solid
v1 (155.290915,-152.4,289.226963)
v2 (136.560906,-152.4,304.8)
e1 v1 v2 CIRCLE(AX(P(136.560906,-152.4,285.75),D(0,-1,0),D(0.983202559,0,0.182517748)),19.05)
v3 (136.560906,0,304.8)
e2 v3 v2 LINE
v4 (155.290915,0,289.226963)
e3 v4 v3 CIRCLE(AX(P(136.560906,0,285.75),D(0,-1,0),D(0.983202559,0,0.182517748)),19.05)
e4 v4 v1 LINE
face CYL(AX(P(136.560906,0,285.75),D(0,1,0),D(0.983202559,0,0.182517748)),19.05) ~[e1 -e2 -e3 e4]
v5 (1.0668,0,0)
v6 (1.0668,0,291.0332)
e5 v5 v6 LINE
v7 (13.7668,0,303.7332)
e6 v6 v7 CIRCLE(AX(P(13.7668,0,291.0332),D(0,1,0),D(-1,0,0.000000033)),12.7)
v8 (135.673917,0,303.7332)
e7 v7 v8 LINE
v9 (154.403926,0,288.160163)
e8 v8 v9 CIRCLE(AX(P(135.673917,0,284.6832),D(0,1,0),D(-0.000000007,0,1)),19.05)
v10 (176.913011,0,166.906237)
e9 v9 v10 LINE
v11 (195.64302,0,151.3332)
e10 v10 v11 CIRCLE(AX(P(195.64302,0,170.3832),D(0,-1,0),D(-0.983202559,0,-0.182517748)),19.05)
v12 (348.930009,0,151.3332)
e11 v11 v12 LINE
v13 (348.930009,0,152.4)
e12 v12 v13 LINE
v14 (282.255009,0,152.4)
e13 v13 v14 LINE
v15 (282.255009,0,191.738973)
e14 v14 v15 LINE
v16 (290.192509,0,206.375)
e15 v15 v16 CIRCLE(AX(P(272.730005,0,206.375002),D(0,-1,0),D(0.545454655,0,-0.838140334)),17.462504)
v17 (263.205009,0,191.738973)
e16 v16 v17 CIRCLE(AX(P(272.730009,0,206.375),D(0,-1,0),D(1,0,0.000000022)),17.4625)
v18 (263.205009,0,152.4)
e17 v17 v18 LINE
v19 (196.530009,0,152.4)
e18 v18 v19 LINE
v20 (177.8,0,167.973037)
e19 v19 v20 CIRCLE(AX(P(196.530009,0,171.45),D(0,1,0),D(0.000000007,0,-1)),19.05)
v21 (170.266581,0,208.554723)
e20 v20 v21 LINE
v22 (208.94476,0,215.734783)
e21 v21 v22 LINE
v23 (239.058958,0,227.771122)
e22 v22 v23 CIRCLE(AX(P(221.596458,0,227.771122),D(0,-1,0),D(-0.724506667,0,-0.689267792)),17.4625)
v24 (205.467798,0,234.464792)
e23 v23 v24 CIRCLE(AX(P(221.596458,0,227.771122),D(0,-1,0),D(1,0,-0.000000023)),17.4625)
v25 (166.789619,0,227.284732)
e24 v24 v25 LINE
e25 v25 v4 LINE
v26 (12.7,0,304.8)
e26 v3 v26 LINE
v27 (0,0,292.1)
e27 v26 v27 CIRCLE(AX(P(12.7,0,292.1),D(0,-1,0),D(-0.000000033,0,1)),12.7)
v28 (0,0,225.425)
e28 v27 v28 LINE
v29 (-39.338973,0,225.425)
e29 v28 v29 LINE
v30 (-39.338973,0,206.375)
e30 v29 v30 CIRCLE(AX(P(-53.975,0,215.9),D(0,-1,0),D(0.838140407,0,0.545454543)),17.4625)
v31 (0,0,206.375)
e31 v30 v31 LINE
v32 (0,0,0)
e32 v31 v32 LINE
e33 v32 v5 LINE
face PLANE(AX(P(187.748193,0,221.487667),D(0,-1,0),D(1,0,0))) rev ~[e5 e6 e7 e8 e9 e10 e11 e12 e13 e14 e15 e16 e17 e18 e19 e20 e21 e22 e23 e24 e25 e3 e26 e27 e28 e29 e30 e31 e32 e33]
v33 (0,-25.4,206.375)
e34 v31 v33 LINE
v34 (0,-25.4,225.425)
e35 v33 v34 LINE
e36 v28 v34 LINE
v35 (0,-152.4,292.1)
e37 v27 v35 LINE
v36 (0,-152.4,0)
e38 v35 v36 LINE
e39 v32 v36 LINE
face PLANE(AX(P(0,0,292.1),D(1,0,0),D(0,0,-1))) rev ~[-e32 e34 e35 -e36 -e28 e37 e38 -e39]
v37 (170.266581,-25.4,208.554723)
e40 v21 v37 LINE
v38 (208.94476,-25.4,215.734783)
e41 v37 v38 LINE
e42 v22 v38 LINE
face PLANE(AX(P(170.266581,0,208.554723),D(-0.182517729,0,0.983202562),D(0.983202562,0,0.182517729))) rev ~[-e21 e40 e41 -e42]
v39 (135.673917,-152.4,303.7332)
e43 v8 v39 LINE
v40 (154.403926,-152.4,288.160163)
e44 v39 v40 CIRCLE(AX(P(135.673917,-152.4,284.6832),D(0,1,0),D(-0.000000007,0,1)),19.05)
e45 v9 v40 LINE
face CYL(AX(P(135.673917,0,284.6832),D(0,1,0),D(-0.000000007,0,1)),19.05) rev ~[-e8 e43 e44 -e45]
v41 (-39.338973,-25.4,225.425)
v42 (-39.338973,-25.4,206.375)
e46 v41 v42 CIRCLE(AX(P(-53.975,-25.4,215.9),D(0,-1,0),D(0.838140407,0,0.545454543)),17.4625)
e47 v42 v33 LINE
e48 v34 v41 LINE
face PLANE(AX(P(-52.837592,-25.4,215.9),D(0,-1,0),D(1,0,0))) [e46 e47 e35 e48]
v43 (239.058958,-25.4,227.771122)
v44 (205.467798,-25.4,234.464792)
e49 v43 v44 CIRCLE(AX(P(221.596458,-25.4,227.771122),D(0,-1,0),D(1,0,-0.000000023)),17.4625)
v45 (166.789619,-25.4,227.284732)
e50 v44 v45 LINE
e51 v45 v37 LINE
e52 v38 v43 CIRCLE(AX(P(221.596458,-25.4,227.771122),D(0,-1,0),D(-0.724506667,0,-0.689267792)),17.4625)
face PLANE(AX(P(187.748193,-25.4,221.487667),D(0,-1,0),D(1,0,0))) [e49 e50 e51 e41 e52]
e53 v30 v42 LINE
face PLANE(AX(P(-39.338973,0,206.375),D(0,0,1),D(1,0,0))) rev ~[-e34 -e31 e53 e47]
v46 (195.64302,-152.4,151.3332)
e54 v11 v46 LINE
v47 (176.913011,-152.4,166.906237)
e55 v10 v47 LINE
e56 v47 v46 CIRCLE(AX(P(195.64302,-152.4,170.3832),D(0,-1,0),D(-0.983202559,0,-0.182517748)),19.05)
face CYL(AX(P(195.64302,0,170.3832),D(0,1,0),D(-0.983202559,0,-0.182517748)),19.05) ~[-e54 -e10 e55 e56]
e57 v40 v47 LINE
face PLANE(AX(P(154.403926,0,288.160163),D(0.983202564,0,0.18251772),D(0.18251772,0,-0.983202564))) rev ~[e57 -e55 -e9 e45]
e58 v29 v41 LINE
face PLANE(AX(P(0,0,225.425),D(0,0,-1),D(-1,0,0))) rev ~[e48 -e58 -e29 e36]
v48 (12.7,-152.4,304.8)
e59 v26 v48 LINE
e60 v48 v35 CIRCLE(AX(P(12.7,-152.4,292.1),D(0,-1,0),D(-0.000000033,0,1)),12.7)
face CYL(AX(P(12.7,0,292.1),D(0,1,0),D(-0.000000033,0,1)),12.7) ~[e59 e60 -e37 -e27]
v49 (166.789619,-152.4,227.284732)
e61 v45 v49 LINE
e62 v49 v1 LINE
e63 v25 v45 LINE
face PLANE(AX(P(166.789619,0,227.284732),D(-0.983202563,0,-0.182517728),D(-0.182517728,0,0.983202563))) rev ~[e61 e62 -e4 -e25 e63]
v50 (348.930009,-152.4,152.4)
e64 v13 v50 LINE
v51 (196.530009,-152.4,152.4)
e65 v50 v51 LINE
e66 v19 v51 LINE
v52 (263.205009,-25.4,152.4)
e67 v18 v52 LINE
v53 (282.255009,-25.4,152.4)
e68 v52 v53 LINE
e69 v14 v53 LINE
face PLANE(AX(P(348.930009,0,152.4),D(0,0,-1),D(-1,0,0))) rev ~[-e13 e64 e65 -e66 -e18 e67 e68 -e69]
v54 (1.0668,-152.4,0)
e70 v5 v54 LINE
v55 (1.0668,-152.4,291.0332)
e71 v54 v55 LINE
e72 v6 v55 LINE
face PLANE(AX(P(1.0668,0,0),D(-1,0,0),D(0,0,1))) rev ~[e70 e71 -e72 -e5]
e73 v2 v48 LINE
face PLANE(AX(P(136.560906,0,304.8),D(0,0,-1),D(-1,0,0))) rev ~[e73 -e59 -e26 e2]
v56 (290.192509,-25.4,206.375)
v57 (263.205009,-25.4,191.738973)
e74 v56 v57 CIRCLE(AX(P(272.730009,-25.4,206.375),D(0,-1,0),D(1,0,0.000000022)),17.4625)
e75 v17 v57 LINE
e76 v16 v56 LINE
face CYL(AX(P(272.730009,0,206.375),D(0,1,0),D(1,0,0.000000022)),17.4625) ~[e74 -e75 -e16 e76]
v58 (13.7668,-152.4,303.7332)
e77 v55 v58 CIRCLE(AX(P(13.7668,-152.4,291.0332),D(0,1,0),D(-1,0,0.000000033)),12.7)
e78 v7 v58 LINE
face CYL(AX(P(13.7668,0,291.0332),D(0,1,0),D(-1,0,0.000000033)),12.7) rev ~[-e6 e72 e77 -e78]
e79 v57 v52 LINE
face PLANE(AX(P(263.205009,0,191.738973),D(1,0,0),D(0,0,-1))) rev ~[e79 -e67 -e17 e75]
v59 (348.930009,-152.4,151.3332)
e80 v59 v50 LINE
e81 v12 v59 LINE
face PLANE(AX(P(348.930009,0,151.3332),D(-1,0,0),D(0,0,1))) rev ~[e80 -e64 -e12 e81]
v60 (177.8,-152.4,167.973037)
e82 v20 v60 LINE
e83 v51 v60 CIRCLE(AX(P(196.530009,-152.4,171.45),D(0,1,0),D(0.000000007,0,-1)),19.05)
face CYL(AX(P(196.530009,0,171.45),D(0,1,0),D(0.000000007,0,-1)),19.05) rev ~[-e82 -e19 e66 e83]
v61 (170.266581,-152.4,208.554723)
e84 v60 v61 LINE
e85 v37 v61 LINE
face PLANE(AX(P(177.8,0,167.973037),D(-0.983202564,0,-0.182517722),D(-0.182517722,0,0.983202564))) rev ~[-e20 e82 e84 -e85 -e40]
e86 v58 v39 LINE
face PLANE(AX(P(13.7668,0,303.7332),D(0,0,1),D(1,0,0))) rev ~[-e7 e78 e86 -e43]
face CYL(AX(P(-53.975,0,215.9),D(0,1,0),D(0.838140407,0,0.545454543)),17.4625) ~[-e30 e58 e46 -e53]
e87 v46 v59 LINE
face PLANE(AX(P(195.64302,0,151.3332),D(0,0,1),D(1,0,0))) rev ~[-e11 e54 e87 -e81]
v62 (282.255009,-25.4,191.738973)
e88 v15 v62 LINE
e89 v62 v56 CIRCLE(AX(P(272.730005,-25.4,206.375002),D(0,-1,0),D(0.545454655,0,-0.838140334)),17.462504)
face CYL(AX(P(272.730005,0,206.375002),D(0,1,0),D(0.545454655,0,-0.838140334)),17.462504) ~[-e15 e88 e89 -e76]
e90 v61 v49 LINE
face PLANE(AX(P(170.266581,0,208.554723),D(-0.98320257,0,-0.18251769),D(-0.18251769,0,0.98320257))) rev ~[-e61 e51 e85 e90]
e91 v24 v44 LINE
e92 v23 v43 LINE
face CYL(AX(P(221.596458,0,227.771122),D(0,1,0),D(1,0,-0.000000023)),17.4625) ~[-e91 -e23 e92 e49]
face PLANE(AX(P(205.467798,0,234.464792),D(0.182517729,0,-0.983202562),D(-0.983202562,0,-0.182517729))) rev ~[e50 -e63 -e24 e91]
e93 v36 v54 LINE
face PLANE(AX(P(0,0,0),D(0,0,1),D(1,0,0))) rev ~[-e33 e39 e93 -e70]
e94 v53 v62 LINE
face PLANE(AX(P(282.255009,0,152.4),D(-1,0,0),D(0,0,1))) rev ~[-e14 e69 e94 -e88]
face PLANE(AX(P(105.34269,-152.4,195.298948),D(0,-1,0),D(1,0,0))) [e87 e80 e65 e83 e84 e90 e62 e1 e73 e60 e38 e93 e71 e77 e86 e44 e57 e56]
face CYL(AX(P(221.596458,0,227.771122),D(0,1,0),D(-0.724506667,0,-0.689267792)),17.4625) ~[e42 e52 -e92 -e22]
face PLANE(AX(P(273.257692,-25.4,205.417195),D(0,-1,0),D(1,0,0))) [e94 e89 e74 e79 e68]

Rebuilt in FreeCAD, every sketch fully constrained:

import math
import FreeCAD as App
import Part
import Sketcher
from FreeCAD import Vector
Q = App.Units.Quantity

doc = App.newDocument("Part")
body = doc.addObject("PartDesign::Body", "Body")

# Sketch on XZ plane
sketch1 = body.newObject("Sketcher::SketchObject", "Sketch")
sketch1.AttachmentSupport = (doc.getObject("XZ_Plane"), [""])
sketch1.MapMode = "FlatFace"
sketch1.addGeometry(Part.LineSegment(Vector(0, 0, 0), Vector(1.1, 0, 0)), False)
sketch1.addGeometry(Part.LineSegment(Vector(1.1, 0, 0), Vector(1.1, 291, 0)), False)
sketch1.addGeometry(Part.ArcOfCircle(Part.Circle(Vector(13.8, 291, 0), Vector(0, 0, 1), 12.7), math.radians(90), math.radians(180)), False)
sketch1.addGeometry(Part.LineSegment(Vector(13.8, 303.7, 0), Vector(135.7, 303.7, 0)), False)
sketch1.addGeometry(Part.ArcOfCircle(Part.Circle(Vector(135.7, 284.7, 0), Vector(0, 0, 1), 19.1), math.radians(11), math.radians(90)), False)
sketch1.addGeometry(Part.LineSegment(Vector(154.4, 288.2, 0), Vector(176.9, 166.9, 0)), False)
sketch1.addGeometry(Part.ArcOfCircle(Part.Circle(Vector(195.6, 170.4, 0), Vector(0, 0, 1), 19.1), math.radians(-169), math.radians(-90)), False)
sketch1.addGeometry(Part.LineSegment(Vector(195.6, 151.3, 0), Vector(348.9, 151.3, 0)), False)
sketch1.addGeometry(Part.LineSegment(Vector(348.9, 151.3, 0), Vector(348.9, 152.4, 0)), False)
sketch1.addGeometry(Part.LineSegment(Vector(348.9, 152.4, 0), Vector(196.5, 152.4, 0)), False)
sketch1.addGeometry(Part.ArcOfCircle(Part.Circle(Vector(196.5, 171.5, 0), Vector(0, 0, 1), 19.1), math.radians(-169), math.radians(-90)), False)
sketch1.addGeometry(Part.LineSegment(Vector(177.8, 168, 0), Vector(170.3, 208.6, 0)), False)
sketch1.addGeometry(Part.LineSegment(Vector(170.3, 208.6, 0), Vector(166.8, 227.3, 0)), False)
sketch1.addGeometry(Part.LineSegment(Vector(166.8, 227.3, 0), Vector(155.3, 289.2, 0)), False)
sketch1.addGeometry(Part.ArcOfCircle(Part.Circle(Vector(136.6, 285.7, 0), Vector(0, 0, 1), 19.1), math.radians(11), math.radians(90)), False)
sketch1.addGeometry(Part.LineSegment(Vector(136.6, 304.8, 0), Vector(12.7, 304.8, 0)), False)
sketch1.addGeometry(Part.ArcOfCircle(Part.Circle(Vector(12.7, 292.1, 0), Vector(0, 0, 1), 12.7), math.radians(90), math.radians(180)), False)
sketch1.addGeometry(Part.LineSegment(Vector(0, 292.1, 0), Vector(0, 0, 0)), False)
sketch1.addConstraint(Sketcher.Constraint("Coincident", 0, 2, 1, 1))
sketch1.addConstraint(Sketcher.Constraint("Tangent", 1, 2, 2, 2))
sketch1.addConstraint(Sketcher.Constraint("Tangent", 2, 1, 3, 1))
sketch1.addConstraint(Sketcher.Constraint("Tangent", 3, 2, 4, 2))
sketch1.addConstraint(Sketcher.Constraint("Tangent", 4, 1, 5, 1))
sketch1.addConstraint(Sketcher.Constraint("Tangent", 5, 2, 6, 1))
sketch1.addConstraint(Sketcher.Constraint("Tangent", 6, 2, 7, 1))
sketch1.addConstraint(Sketcher.Constraint("Coincident", 7, 2, 8, 1))
sketch1.addConstraint(Sketcher.Constraint("Coincident", 8, 2, 9, 1))
sketch1.addConstraint(Sketcher.Constraint("Tangent", 9, 2, 10, 2))
sketch1.addConstraint(Sketcher.Constraint("Tangent", 10, 1, 11, 1))
sketch1.addConstraint(Sketcher.Constraint("Coincident", 11, 2, 12, 1))
sketch1.addConstraint(Sketcher.Constraint("Coincident", 12, 2, 13, 1))
sketch1.addConstraint(Sketcher.Constraint("Tangent", 13, 2, 14, 1))
sketch1.addConstraint(Sketcher.Constraint("Tangent", 14, 2, 15, 1))
sketch1.addConstraint(Sketcher.Constraint("Tangent", 15, 2, 16, 1))
sketch1.addConstraint(Sketcher.Constraint("Tangent", 16, 2, 17, 1))
sketch1.addConstraint(Sketcher.Constraint("Coincident", 17, 2, 0, 1))
sketch1.addConstraint(Sketcher.Constraint("Horizontal", 0))
sketch1.addConstraint(Sketcher.Constraint("Vertical", 1))
sketch1.addConstraint(Sketcher.Constraint("Horizontal", 3))
sketch1.addConstraint(Sketcher.Constraint("Horizontal", 7))
sketch1.addConstraint(Sketcher.Constraint("Vertical", 8))
sketch1.addConstraint(Sketcher.Constraint("Horizontal", 9))
sketch1.addConstraint(Sketcher.Constraint("Horizontal", 15))
sketch1.addConstraint(Sketcher.Constraint("Vertical", 17))
sketch1.addConstraint(Sketcher.Constraint("Coincident", 17, 2, -1, 1))
sketch1.addConstraint(Sketcher.Constraint("Equal", 4, 6))
sketch1.addConstraint(Sketcher.Constraint("Equal", 6, 10))
sketch1.addConstraint(Sketcher.Constraint("Equal", 10, 14))
sketch1.addConstraint(Sketcher.Constraint("Equal", 2, 16))
sketch1.addConstraint(Sketcher.Constraint("Parallel", 5, 11))
sketch1.addConstraint(Sketcher.Constraint("Parallel", 11, 12))
sketch1.addConstraint(Sketcher.Constraint("Parallel", 12, 13))
sketch1.addConstraint(Sketcher.Constraint("Equal", 0, 8))
sketch1.addConstraint(Sketcher.Constraint("Radius", 2, Q("0.5 in")))
sketch1.addConstraint(Sketcher.Constraint("DistanceX", 9, 2, 9, 1, Q("6 in")))
sketch1.addConstraint(Sketcher.Constraint("Radius", 4, Q("0.75 in")))
sketch1.addConstraint(Sketcher.Constraint("DistanceY", 17, 2, 17, 1, Q("11.5 in")))
sketch1.addConstraint(Sketcher.Constraint("DistanceY", -1, 1, 8, 2, Q("6 in")))
sketch1.addConstraint(Sketcher.Constraint("DistanceX", -1, 1, 10, 1, Q("7 in")))
sketch1.addConstraint(Sketcher.Constraint("DistanceY", 6, 3, 4, 3, Q("4.5 in")))
sketch1.addConstraint(Sketcher.Constraint("Distance", 12, Q("0.75 in")))
sketch1.addConstraint(Sketcher.Constraint("DistanceX", 0, 1, 0, 2, Q("0.042 in")))
sketch1.addConstraint(Sketcher.Constraint("Distance", 11, Q("1.625 in")))
sketch1.addConstraint(Sketcher.Constraint("DistanceX", 7, 1, 7, 2, Q("153.286989 mm")))
sketch1.addConstraint(Sketcher.Constraint("DistanceX", 3, 2, 13, 2, Q("19.616998 mm")))
pad1 = body.newObject("PartDesign::Pad", "Pad")
pad1.Profile = sketch1
pad1.Length = Q("6 in")

# Sketch on XZ plane
sketch2 = body.newObject("Sketcher::SketchObject", "Sketch001")
sketch2.AttachmentSupport = (doc.getObject("XZ_Plane"), [""])
sketch2.MapMode = "FlatFace"
sketch2.addGeometry(Part.ArcOfCircle(Part.Circle(Vector(-54, 216, 0), Vector(0, 0, 1), 17), math.radians(33), math.radians(327)), False)
sketch2.addGeometry(Part.LineSegment(Vector(-39, 206, 0), Vector(0, 206, 0)), False)
sketch2.addGeometry(Part.LineSegment(Vector(0, 206, 0), Vector(0, 225, 0)), False)
sketch2.addGeometry(Part.LineSegment(Vector(0, 225, 0), Vector(-39, 225, 0)), False)
sketch2.addGeometry(Part.LineSegment(Vector(205, 234, 0), Vector(167, 227, 0)), False)
sketch2.addGeometry(Part.LineSegment(Vector(167, 227, 0), Vector(170, 209, 0)), False)
sketch2.addGeometry(Part.LineSegment(Vector(170, 209, 0), Vector(209, 216, 0)), False)
sketch2.addGeometry(Part.ArcOfCircle(Part.Circle(Vector(222, 228, 0), Vector(0, 0, 1), 17), math.radians(-136), math.radians(0)), False)
sketch2.addGeometry(Part.ArcOfCircle(Part.Circle(Vector(222, 228, 0), Vector(0, 0, 1), 17), math.radians(0), math.radians(157)), False)
sketch2.addGeometry(Part.ArcOfCircle(Part.Circle(Vector(273, 206, 0), Vector(0, 0, 1), 17), math.radians(-57), math.radians(0)), False)
sketch2.addGeometry(Part.ArcOfCircle(Part.Circle(Vector(273, 206, 0), Vector(0, 0, 1), 17), math.radians(0), math.radians(237)), False)
sketch2.addGeometry(Part.LineSegment(Vector(263, 192, 0), Vector(263, 152, 0)), False)
sketch2.addGeometry(Part.LineSegment(Vector(263, 152, 0), Vector(282, 152, 0)), False)
sketch2.addGeometry(Part.LineSegment(Vector(282, 152, 0), Vector(282, 192, 0)), False)
sketch2.addConstraint(Sketcher.Constraint("Coincident", 0, 2, 1, 1))
sketch2.addConstraint(Sketcher.Constraint("Coincident", 1, 2, 2, 1))
sketch2.addConstraint(Sketcher.Constraint("Coincident", 2, 2, 3, 1))
sketch2.addConstraint(Sketcher.Constraint("Coincident", 3, 2, 0, 1))
sketch2.addConstraint(Sketcher.Constraint("Coincident", 4, 2, 5, 1))
sketch2.addConstraint(Sketcher.Constraint("Coincident", 5, 2, 6, 1))
sketch2.addConstraint(Sketcher.Constraint("Coincident", 6, 2, 7, 1))
sketch2.addConstraint(Sketcher.Constraint("Tangent", 7, 2, 8, 1))
sketch2.addConstraint(Sketcher.Constraint("Coincident", 8, 2, 4, 1))
sketch2.addConstraint(Sketcher.Constraint("Tangent", 9, 2, 10, 1))
sketch2.addConstraint(Sketcher.Constraint("Coincident", 10, 2, 11, 1))
sketch2.addConstraint(Sketcher.Constraint("Coincident", 11, 2, 12, 1))
sketch2.addConstraint(Sketcher.Constraint("Coincident", 12, 2, 13, 1))
sketch2.addConstraint(Sketcher.Constraint("Coincident", 13, 2, 9, 1))
sketch2.addConstraint(Sketcher.Constraint("Horizontal", 1))
sketch2.addConstraint(Sketcher.Constraint("Vertical", 2))
sketch2.addConstraint(Sketcher.Constraint("Horizontal", 3))
sketch2.addConstraint(Sketcher.Constraint("Vertical", 11))
sketch2.addConstraint(Sketcher.Constraint("Horizontal", 12))
sketch2.addConstraint(Sketcher.Constraint("Vertical", 13))
sketch2.addConstraint(Sketcher.Constraint("Equal", 0, 7))
sketch2.addConstraint(Sketcher.Constraint("Equal", 7, 8))
sketch2.addConstraint(Sketcher.Constraint("Equal", 8, 10))
sketch2.addConstraint(Sketcher.Constraint("PointOnObject", 1, 2, -2))
sketch2.addConstraint(Sketcher.Constraint("Perpendicular", 4, 5))
sketch2.addConstraint(Sketcher.Constraint("Perpendicular", 5, 6))
sketch2.addConstraint(Sketcher.Constraint("Horizontal", 10, 3, 0, 2))
sketch2.addConstraint(Sketcher.Constraint("Horizontal", 8, 3, 7, 2))
sketch2.addConstraint(Sketcher.Constraint("Horizontal", 1, 2, 9, 2))
sketch2.addConstraint(Sketcher.Constraint("Horizontal", 10, 2, 13, 2))
sketch2.addConstraint(Sketcher.Constraint("Vertical", 0, 2, 3, 2))
sketch2.addConstraint(Sketcher.Constraint("Equal", 12, 2))
sketch2.addConstraint(Sketcher.Constraint("Equal", 3, 11))
sketch2.addConstraint(Sketcher.Constraint("Equal", 4, 6))
sketch2.addConstraint(Sketcher.Constraint("DistanceY", -1, 1, 11, 2, Q("6 in")))
sketch2.addConstraint(Sketcher.Constraint("Radius", 0, Q("0.6875 in")))
sketch2.addConstraint(Sketcher.Constraint("DistanceX", 12, 1, 12, 2, Q("0.75 in")))
sketch2.addConstraint(Sketcher.Constraint("DistanceY", -1, 1, 0, 3, Q("8.5 in")))
sketch2.addConstraint(Sketcher.Constraint("Radius", 9, Q("0.6875002 in")))
sketch2.addConstraint(Sketcher.Constraint("Distance", 5, Q("0.75 in")))
sketch2.addConstraint(Sketcher.Constraint("DistanceX", -1, 1, 8, 2, Q("205.467798 mm")))
sketch2.addConstraint(Sketcher.Constraint("DistanceY", 5, 2, 7, 3, Q("19.216399 mm")))
sketch2.addConstraint(Sketcher.Constraint("DistanceX", 6, 2, 8, 3, Q("12.651698 mm")))
sketch2.addConstraint(Sketcher.Constraint("DistanceY", -1, 1, 7, 3, Q("227.771122 mm")))
sketch2.addConstraint(Sketcher.Constraint("DistanceX", -1, 1, 10, 3, Q("272.730009 mm")))
pad2 = body.newObject("PartDesign::Pad", "Pad001")
pad2.Profile = sketch2
pad2.Length = Q("1 in")

doc.recompute()
